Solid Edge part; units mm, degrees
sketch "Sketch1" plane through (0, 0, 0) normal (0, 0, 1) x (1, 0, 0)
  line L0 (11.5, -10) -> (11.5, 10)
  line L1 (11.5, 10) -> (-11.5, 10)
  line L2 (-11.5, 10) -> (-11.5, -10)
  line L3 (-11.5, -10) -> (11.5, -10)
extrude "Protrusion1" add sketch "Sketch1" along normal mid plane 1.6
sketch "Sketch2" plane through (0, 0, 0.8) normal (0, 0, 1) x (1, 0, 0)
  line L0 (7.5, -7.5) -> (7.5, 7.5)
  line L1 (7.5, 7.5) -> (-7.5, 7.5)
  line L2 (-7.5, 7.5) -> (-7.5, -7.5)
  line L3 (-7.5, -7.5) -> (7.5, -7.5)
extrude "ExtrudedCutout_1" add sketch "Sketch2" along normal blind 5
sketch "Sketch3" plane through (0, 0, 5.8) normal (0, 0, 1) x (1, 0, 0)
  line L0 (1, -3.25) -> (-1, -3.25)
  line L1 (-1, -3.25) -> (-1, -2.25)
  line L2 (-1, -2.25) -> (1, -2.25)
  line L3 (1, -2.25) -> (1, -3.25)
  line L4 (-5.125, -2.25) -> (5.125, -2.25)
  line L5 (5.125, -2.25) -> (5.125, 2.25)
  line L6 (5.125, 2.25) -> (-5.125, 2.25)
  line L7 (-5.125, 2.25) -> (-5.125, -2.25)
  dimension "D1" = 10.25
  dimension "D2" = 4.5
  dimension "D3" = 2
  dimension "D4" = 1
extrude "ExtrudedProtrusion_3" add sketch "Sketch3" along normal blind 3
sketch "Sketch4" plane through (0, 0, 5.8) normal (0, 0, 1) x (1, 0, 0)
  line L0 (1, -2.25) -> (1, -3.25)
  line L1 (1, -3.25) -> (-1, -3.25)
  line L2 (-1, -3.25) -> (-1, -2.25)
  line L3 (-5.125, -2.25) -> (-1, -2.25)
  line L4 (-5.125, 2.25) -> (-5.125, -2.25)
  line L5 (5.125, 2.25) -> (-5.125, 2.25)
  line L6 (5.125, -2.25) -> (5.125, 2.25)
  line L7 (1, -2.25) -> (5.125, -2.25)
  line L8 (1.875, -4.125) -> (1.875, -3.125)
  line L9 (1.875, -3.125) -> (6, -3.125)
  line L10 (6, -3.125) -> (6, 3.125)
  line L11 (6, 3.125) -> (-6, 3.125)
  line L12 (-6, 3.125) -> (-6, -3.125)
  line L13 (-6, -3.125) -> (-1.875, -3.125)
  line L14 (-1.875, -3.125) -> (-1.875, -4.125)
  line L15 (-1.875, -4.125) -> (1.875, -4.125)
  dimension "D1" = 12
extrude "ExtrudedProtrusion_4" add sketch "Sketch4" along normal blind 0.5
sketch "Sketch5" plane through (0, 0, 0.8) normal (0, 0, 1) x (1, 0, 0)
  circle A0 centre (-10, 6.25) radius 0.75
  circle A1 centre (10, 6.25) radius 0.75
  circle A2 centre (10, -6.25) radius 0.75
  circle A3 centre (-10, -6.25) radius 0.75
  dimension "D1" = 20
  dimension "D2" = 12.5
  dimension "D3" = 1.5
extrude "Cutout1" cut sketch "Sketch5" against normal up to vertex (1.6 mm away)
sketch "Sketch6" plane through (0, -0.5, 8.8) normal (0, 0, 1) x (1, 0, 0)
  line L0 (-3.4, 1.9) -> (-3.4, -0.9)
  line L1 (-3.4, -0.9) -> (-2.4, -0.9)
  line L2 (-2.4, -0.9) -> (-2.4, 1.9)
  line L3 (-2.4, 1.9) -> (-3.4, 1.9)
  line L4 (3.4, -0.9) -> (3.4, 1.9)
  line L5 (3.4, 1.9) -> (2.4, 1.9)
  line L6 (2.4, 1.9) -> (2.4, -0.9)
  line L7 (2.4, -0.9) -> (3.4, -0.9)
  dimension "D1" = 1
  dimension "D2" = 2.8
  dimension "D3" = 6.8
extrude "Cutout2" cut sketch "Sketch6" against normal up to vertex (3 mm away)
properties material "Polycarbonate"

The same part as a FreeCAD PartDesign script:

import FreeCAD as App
import Part
import Sketcher
from FreeCAD import Vector


def add_polygon(sketch, points):
    """Adds a closed chain of lines whose ends are joined by coincident constraints."""
    first, n = sketch.GeometryCount, len(points)
    for a, b in zip(points, points[1:] + points[:1]):
        sketch.addGeometry(Part.LineSegment(App.Vector(*a, 0), App.Vector(*b, 0)), False)
    for i in range(n):
        sketch.addConstraint(Sketcher.Constraint("Coincident", first + i, 2, first + (i + 1) % n, 1))

doc = App.newDocument("Part")
params = doc.addObject("Spreadsheet::Sheet", "Params")
for row, (alias, value) in enumerate([
    ("sketch1_width", "23 mm"),
    ("sketch1_height", "20 mm"),
    ("pad1_length", "1.6 mm"),
    ("sketch2_width", "15 mm"),
    ("pad2_length", "5 mm"),
    ("sketch3_width", "2 mm"),
    ("sketch3_height", "1 mm"),
    ("sketch3_height2", "4.5 mm"),
    ("sketch3_width2", "10.25 mm"),
    ("pad3_length", "3 mm"),
    ("sketch4_width", "12 mm"),
    ("sketch4_width2", "2 mm"),
    ("sketch4_height", "1 mm"),
    ("sketch4_height2", "4.5 mm"),
    ("sketch4_width3", "3.75 mm"),
    ("pad4_length", "0.5 mm"),
    ("sketch5_diameter", "1.5 mm"),
    ("pocket1_length", "1.6 mm"),
    ("sketch6_width", "1 mm"),
    ("sketch6_height", "2.8 mm"),
    ("pocket2_length", "3 mm"),
], start=1):
    params.set(f"A{row}", alias)
    params.set(f"B{row}", "=" + value)
    params.setAlias(f"B{row}", alias)

body = doc.addObject("PartDesign::Body", "Body")

# Sketch on XY plane
sketch1 = doc.addObject("Sketcher::SketchObject", "Sketch")
body.addObject(sketch1)
sketch1.AttachmentSupport = (doc.XY_Plane, [""])
sketch1.MapMode = "FlatFace"
add_polygon(sketch1, [(-12, -10), (12, -10), (12, 10), (-12, 10)])  # lines 0-3
sketch1.addConstraint(Sketcher.Constraint("Horizontal", 0))
sketch1.addConstraint(Sketcher.Constraint("Vertical", 1))
sketch1.addConstraint(Sketcher.Constraint("Horizontal", 2))
sketch1.addConstraint(Sketcher.Constraint("Vertical", 3))
sketch1.addConstraint(Sketcher.Constraint("Symmetric", 0, 2, 2, 2, -1, 1))
sketch1.addConstraint(Sketcher.Constraint("DistanceX", 0, 1, 0, 2, 23.0))
sketch1.addConstraint(Sketcher.Constraint("DistanceY", 1, 1, 1, 2, 20.0))
sketch1.setExpression("Constraints[9]", "Params.sketch1_width")
sketch1.setExpression("Constraints[10]", "Params.sketch1_height")
pad1 = doc.addObject("PartDesign::Pad", "Pad")
body.addObject(pad1)
pad1.Profile = sketch1
pad1.setExpression("Length", "Params.pad1_length")
pad1.Midplane = True

# Sketch on XY plane
sketch2 = doc.addObject("Sketcher::SketchObject", "Sketch001")
body.addObject(sketch2)
sketch2.AttachmentSupport = (doc.XY_Plane, [""])
sketch2.MapMode = "FlatFace"
sketch2.AttachmentOffset = App.Placement(Vector(0, 0, 0.8), App.Rotation())
add_polygon(sketch2, [(-8, -8), (8, -8), (8, 8), (-8, 8)])  # lines 0-3
sketch2.addConstraint(Sketcher.Constraint("Horizontal", 0))
sketch2.addConstraint(Sketcher.Constraint("Vertical", 1))
sketch2.addConstraint(Sketcher.Constraint("Horizontal", 2))
sketch2.addConstraint(Sketcher.Constraint("Vertical", 3))
sketch2.addConstraint(Sketcher.Constraint("Symmetric", 0, 2, 2, 2, -1, 1))
sketch2.addConstraint(Sketcher.Constraint("Equal", 2, 1))
sketch2.addConstraint(Sketcher.Constraint("DistanceX", 0, 1, 0, 2, 15.0))
sketch2.setExpression("Constraints[10]", "Params.sketch2_width")
pad2 = doc.addObject("PartDesign::Pad", "Pad001")
body.addObject(pad2)
pad2.Profile = sketch2
pad2.setExpression("Length", "Params.pad2_length")

# Sketch on XY plane
sketch3 = doc.addObject("Sketcher::SketchObject", "Sketch002")
body.addObject(sketch3)
sketch3.AttachmentSupport = (doc.XY_Plane, [""])
sketch3.MapMode = "FlatFace"
sketch3.AttachmentOffset = App.Placement(Vector(0, 0, 5.8), App.Rotation())
add_polygon(sketch3, [(-1, -3.2), (1, -3.2), (1, -2.2), (5.1, -2.2), (5.1, 2.2), (-5.1, 2.2), (-5.1, -2.2), (-1, -2.2)])  # lines 0-7
sketch3.addConstraint(Sketcher.Constraint("Horizontal", 0))
sketch3.addConstraint(Sketcher.Constraint("Vertical", 1))
sketch3.addConstraint(Sketcher.Constraint("Horizontal", 2))
sketch3.addConstraint(Sketcher.Constraint("Vertical", 3))
sketch3.addConstraint(Sketcher.Constraint("Horizontal", 4))
sketch3.addConstraint(Sketcher.Constraint("Vertical", 5))
sketch3.addConstraint(Sketcher.Constraint("Horizontal", 6))
sketch3.addConstraint(Sketcher.Constraint("Vertical", 7))
sketch3.addConstraint(Sketcher.Constraint("Symmetric", 2, 2, 4, 2, -1, 1))
sketch3.addConstraint(Sketcher.Constraint("Symmetric", 1, 2, 6, 2, -2))
sketch3.addConstraint(Sketcher.Constraint("DistanceX", 0, 1, 0, 2, 2.0))
sketch3.addConstraint(Sketcher.Constraint("DistanceY", 1, 1, 1, 2, 1.0))
sketch3.addConstraint(Sketcher.Constraint("DistanceY", 3, 1, 3, 2, 4.5))
sketch3.addConstraint(Sketcher.Constraint("DistanceX", 4, 2, 4, 1, 10.25))
sketch3.setExpression("Constraints[18]", "Params.sketch3_width")
sketch3.setExpression("Constraints[19]", "Params.sketch3_height")
sketch3.setExpression("Constraints[20]", "Params.sketch3_height2")
sketch3.setExpression("Constraints[21]", "Params.sketch3_width2")
pad3 = doc.addObject("PartDesign::Pad", "Pad002")
body.addObject(pad3)
pad3.Profile = sketch3
pad3.setExpression("Length", "Params.pad3_length")

# Sketch on XY plane
sketch4 = doc.addObject("Sketcher::SketchObject", "Sketch003")
body.addObject(sketch4)
sketch4.AttachmentSupport = (doc.XY_Plane, [""])
sketch4.MapMode = "FlatFace"
sketch4.AttachmentOffset = App.Placement(Vector(0, 0, 5.8), App.Rotation())
add_polygon(sketch4, [(-1.9, -4.1), (1.9, -4.1), (1.9, -3.1), (6, -3.1), (6, 3.1), (-6, 3.1), (-6, -3.1), (-1.9, -3.1)])  # lines 0-7
add_polygon(sketch4, [(5.1, -2.2), (1, -2.2), (1, -3.2), (-1, -3.2), (-1, -2.2), (-5.1, -2.2), (-5.1, 2.2), (5.1, 2.2)])  # lines 8-15
sketch4.addConstraint(Sketcher.Constraint("Horizontal", 0))
sketch4.addConstraint(Sketcher.Constraint("Vertical", 1))
sketch4.addConstraint(Sketcher.Constraint("Horizontal", 2))
sketch4.addConstraint(Sketcher.Constraint("Vertical", 3))
sketch4.addConstraint(Sketcher.Constraint("Horizontal", 4))
sketch4.addConstraint(Sketcher.Constraint("Vertical", 5))
sketch4.addConstraint(Sketcher.Constraint("Horizontal", 6))
sketch4.addConstraint(Sketcher.Constraint("Vertical", 7))
sketch4.addConstraint(Sketcher.Constraint("Horizontal", 8))
sketch4.addConstraint(Sketcher.Constraint("Vertical", 9))
sketch4.addConstraint(Sketcher.Constraint("Horizontal", 10))
sketch4.addConstraint(Sketcher.Constraint("Vertical", 11))
sketch4.addConstraint(Sketcher.Constraint("Horizontal", 12))
sketch4.addConstraint(Sketcher.Constraint("Vertical", 13))
sketch4.addConstraint(Sketcher.Constraint("Horizontal", 14))
sketch4.addConstraint(Sketcher.Constraint("Vertical", 15))
sketch4.addConstraint(Sketcher.Constraint("Symmetric", 2, 2, 4, 2, -1, 1))
sketch4.addConstraint(Sketcher.Constraint("Symmetric", 12, 2, 14, 2, -1, 1))
sketch4.addConstraint(Sketcher.Constraint("Symmetric", 1, 2, 6, 2, -2))
sketch4.addConstraint(Sketcher.Constraint("Symmetric", 8, 2, 11, 2, -2))
sketch4.addConstraint(Sketcher.Constraint("Equal", 6, 8))
sketch4.addConstraint(Sketcher.Constraint("Equal", 7, 9))
sketch4.addConstraint(Sketcher.Constraint("DistanceX", 4, 2, 4, 1, 12.0))
sketch4.addConstraint(Sketcher.Constraint("DistanceX", 10, 2, 10, 1, 2.0))
sketch4.addConstraint(Sketcher.Constraint("DistanceY", 1, 1, 1, 2, 1.0))
sketch4.addConstraint(Sketcher.Constraint("DistanceY", 13, 1, 13, 2, 4.5))
sketch4.addConstraint(Sketcher.Constraint("DistanceX", 0, 1, 0, 2, 3.75))
sketch4.addConstraint(Sketcher.Constraint("DistanceY", 3, 1, 3, 2, 6.25))
sketch4.setExpression("Constraints[38]", "Params.sketch4_width")
sketch4.setExpression("Constraints[39]", "Params.sketch4_width2")
sketch4.setExpression("Constraints[40]", "Params.sketch4_height")
sketch4.setExpression("Constraints[41]", "Params.sketch4_height2")
sketch4.setExpression("Constraints[42]", "Params.sketch4_width3")
pad4 = doc.addObject("PartDesign::Pad", "Pad003")
body.addObject(pad4)
pad4.Profile = sketch4
pad4.setExpression("Length", "Params.pad4_length")

# Sketch on XY plane
sketch5 = doc.addObject("Sketcher::SketchObject", "Sketch004")
body.addObject(sketch5)
sketch5.AttachmentSupport = (doc.XY_Plane, [""])
sketch5.MapMode = "FlatFace"
sketch5.AttachmentOffset = App.Placement(Vector(0, 0, 0.8), App.Rotation())
sketch5.addGeometry(Part.Circle(Vector(-10, 6.2, 0), Vector(0, 0, 1), 0.8), False)
sketch5.addGeometry(Part.Circle(Vector(10, 6.2, 0), Vector(0, 0, 1), 0.8), False)
sketch5.addGeometry(Part.Circle(Vector(10, -6.2, 0), Vector(0, 0, 1), 0.8), False)
sketch5.addGeometry(Part.Circle(Vector(-10, -6.2, 0), Vector(0, 0, 1), 0.8), False)
sketch5.addConstraint(Sketcher.Constraint("Equal", 0, 1))
sketch5.addConstraint(Sketcher.Constraint("Equal", 1, 2))
sketch5.addConstraint(Sketcher.Constraint("Equal", 2, 3))
sketch5.addConstraint(Sketcher.Constraint("Symmetric", 0, 3, 2, 3, -1, 1))
sketch5.addConstraint(Sketcher.Constraint("Symmetric", 1, 3, 3, 3, -1, 1))
sketch5.addConstraint(Sketcher.Constraint("Symmetric", 0, 3, 1, 3, -2))
sketch5.addConstraint(Sketcher.Constraint("Diameter", 0, 1.5))
sketch5.addConstraint(Sketcher.Constraint("DistanceX", 0, 3, -1, 1, 10.0))
sketch5.addConstraint(Sketcher.Constraint("DistanceY", 2, 3, 1, 3, 12.5))
sketch5.setExpression("Constraints[6]", "Params.sketch5_diameter")
pocket1 = doc.addObject("PartDesign::Pocket", "Pocket")
body.addObject(pocket1)
pocket1.Profile = sketch5
pocket1.setExpression("Length", "Params.pocket1_length")

# Sketch on XY plane
sketch6 = doc.addObject("Sketcher::SketchObject", "Sketch005")
body.addObject(sketch6)
sketch6.AttachmentSupport = (doc.XY_Plane, [""])
sketch6.MapMode = "FlatFace"
sketch6.AttachmentOffset = App.Placement(Vector(0, 0, 8.8), App.Rotation())
add_polygon(sketch6, [(-2.4, 1.4), (-3.4, 1.4), (-3.4, -1.4), (-2.4, -1.4)])  # lines 0-3
add_polygon(sketch6, [(2.4, -1.4), (3.4, -1.4), (3.4, 1.4), (2.4, 1.4)])  # lines 4-7
sketch6.addConstraint(Sketcher.Constraint("Horizontal", 0))
sketch6.addConstraint(Sketcher.Constraint("Vertical", 1))
sketch6.addConstraint(Sketcher.Constraint("Horizontal", 2))
sketch6.addConstraint(Sketcher.Constraint("Vertical", 3))
sketch6.addConstraint(Sketcher.Constraint("Horizontal", 4))
sketch6.addConstraint(Sketcher.Constraint("Vertical", 5))
sketch6.addConstraint(Sketcher.Constraint("Horizontal", 6))
sketch6.addConstraint(Sketcher.Constraint("Vertical", 7))
sketch6.addConstraint(Sketcher.Constraint("Symmetric", 0, 2, 4, 2, -1, 1))
sketch6.addConstraint(Sketcher.Constraint("Symmetric", 2, 2, 6, 2, -1, 1))
sketch6.addConstraint(Sketcher.Constraint("Horizontal", 2, 2, 4, 2))
sketch6.addConstraint(Sketcher.Constraint("DistanceX", 0, 2, 0, 1, 1.0))
sketch6.addConstraint(Sketcher.Constraint("DistanceY", 1, 2, 1, 1, 2.8))
sketch6.addConstraint(Sketcher.Constraint("DistanceX", 0, 2, -1, 1, 3.4))
sketch6.setExpression("Constraints[19]", "Params.sketch6_width")
sketch6.setExpression("Constraints[20]", "Params.sketch6_height")
pocket2 = doc.addObject("PartDesign::Pocket", "Pocket001")
body.addObject(pocket2)
pocket2.Profile = sketch6
pocket2.setExpression("Length", "Params.pocket2_length")

doc.recompute()
